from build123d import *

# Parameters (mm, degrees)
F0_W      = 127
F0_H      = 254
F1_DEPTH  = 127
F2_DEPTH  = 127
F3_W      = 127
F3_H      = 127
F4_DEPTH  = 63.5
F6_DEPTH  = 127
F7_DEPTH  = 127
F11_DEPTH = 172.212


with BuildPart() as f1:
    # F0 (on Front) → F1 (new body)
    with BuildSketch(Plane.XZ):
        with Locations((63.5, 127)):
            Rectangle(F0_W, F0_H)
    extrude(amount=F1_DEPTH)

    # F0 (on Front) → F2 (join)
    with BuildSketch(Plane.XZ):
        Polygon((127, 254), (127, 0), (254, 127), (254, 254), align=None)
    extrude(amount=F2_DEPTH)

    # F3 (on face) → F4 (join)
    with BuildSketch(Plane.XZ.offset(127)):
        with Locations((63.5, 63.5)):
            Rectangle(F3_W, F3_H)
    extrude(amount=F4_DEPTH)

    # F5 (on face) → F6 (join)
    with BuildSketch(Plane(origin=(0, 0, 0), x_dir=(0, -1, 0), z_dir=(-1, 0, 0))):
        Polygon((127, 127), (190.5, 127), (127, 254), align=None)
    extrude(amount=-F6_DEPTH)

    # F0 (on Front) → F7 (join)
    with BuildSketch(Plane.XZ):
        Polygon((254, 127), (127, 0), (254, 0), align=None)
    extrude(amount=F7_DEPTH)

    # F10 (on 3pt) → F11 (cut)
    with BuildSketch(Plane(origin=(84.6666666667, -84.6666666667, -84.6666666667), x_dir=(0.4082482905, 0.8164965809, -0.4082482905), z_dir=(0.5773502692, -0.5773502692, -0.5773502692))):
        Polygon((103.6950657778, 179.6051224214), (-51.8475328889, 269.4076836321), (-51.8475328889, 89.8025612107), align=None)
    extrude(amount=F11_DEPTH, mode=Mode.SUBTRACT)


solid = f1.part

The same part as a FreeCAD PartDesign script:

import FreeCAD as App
import Part
import Sketcher

V = App.Vector
Q = App.Units.Quantity


def add_polygon(sketch, points):
    """Adds a closed chain of lines whose ends are joined by coincident constraints."""
    first, n = sketch.GeometryCount, len(points)
    for a, b in zip(points, points[1:] + points[:1]):
        sketch.addGeometry(Part.LineSegment(App.Vector(*a, 0), App.Vector(*b, 0)), False)
    for i in range(n):
        sketch.addConstraint(Sketcher.Constraint("Coincident", first + i, 2, first + (i + 1) % n, 1))

doc = App.newDocument("Part")
body = doc.addObject("PartDesign::Body", "Body")

sketch1 = body.newObject("Sketcher::SketchObject", "Sketch")
sketch1.AttachmentSupport = (doc.getObject("XZ_Plane"), [""])
sketch1.MapMode = "FlatFace"
add_polygon(sketch1, [(0, 254), (0, 0), (127, 0), (127, 254)])
sketch1.addConstraint(Sketcher.Constraint("Vertical", 0))
sketch1.addConstraint(Sketcher.Constraint("Horizontal", 1))
sketch1.addConstraint(Sketcher.Constraint("Vertical", 2))
sketch1.addConstraint(Sketcher.Constraint("Horizontal", 3))
sketch1.addConstraint(Sketcher.Constraint("Coincident", 0, 2, -1, 1))
sketch1.addConstraint(Sketcher.Constraint("DistanceX", 1, 1, 1, 2, Q("5 in")))
sketch1.addConstraint(Sketcher.Constraint("DistanceY", 0, 2, 0, 1, Q("10 in")))
pad1 = body.newObject("PartDesign::Pad", "Pad")
pad1.Profile = sketch1
pad1.Length = Q("5 in")

sketch2 = body.newObject("Sketcher::SketchObject", "Sketch001")
sketch2.AttachmentSupport = (doc.getObject("XZ_Plane"), [""])
sketch2.MapMode = "FlatFace"
add_polygon(sketch2, [(127, 254), (127, 0), (254, 127), (254, 254)])
sketch2.addConstraint(Sketcher.Constraint("Vertical", 0))
sketch2.addConstraint(Sketcher.Constraint("Vertical", 2))
sketch2.addConstraint(Sketcher.Constraint("Horizontal", 3))
sketch2.addConstraint(Sketcher.Constraint("PointOnObject", 0, 2, -1))
sketch2.addConstraint(Sketcher.Constraint("Equal", 3, 2))
sketch2.addConstraint(Sketcher.Constraint("DistanceX", 3, 2, 3, 1, Q("5 in")))
sketch2.addConstraint(Sketcher.Constraint("DistanceY", 0, 2, 0, 1, Q("10 in")))
sketch2.addConstraint(Sketcher.Constraint("DistanceX", -1, 1, 0, 2, Q("5 in")))
pad2 = body.newObject("PartDesign::Pad", "Pad001")
pad2.Profile = sketch2
pad2.Length = Q("5 in")

sketch3 = body.newObject("Sketcher::SketchObject", "Sketch002")
sketch3.AttachmentSupport = (doc.getObject("XZ_Plane"), [""])
sketch3.MapMode = "FlatFace"
sketch3.AttachmentOffset = App.Placement(V(0, 0, 5 * 25.4), App.Rotation())
add_polygon(sketch3, [(0, 127), (0, 0), (127, 0), (127, 127)])
sketch3.addConstraint(Sketcher.Constraint("Vertical", 0))
sketch3.addConstraint(Sketcher.Constraint("Horizontal", 1))
sketch3.addConstraint(Sketcher.Constraint("Vertical", 2))
sketch3.addConstraint(Sketcher.Constraint("Horizontal", 3))
sketch3.addConstraint(Sketcher.Constraint("Coincident", 0, 2, -1, 1))
sketch3.addConstraint(Sketcher.Constraint("Equal", 3, 0))
sketch3.addConstraint(Sketcher.Constraint("DistanceX", 1, 1, 1, 2, Q("5 in")))
pad3 = body.newObject("PartDesign::Pad", "Pad002")
pad3.Profile = sketch3
pad3.Length = Q("2.5 in")

sketch4 = body.newObject("Sketcher::SketchObject", "Sketch003")
sketch4.AttachmentSupport = (doc.getObject("YZ_Plane"), [""])
sketch4.MapMode = "FlatFace"
add_polygon(sketch4, [(-127, 127), (-190, 127), (-127, 254)])
sketch4.addConstraint(Sketcher.Constraint("Horizontal", 0))
sketch4.addConstraint(Sketcher.Constraint("Vertical", 2))
sketch4.addConstraint(Sketcher.Constraint("DistanceY", 2, 2, 2, 1, Q("5 in")))
sketch4.addConstraint(Sketcher.Constraint("DistanceX", 0, 2, 0, 1, Q("2.5 in")))
sketch4.addConstraint(Sketcher.Constraint("DistanceY", -1, 1, 0, 2, Q("5 in")))
sketch4.addConstraint(Sketcher.Constraint("DistanceX", 1, 2, -1, 1, Q("5 in")))
pad4 = body.newObject("PartDesign::Pad", "Pad003")
pad4.Profile = sketch4
pad4.Length = Q("5 in")

sketch5 = body.newObject("Sketcher::SketchObject", "Sketch004")
sketch5.AttachmentSupport = (doc.getObject("XZ_Plane"), [""])
sketch5.MapMode = "FlatFace"
add_polygon(sketch5, [(254, 127), (127, 0), (254, 0)])
sketch5.addConstraint(Sketcher.Constraint("Horizontal", 1))
sketch5.addConstraint(Sketcher.Constraint("Vertical", 2))
sketch5.addConstraint(Sketcher.Constraint("PointOnObject", 0, 2, -1))
sketch5.addConstraint(Sketcher.Constraint("Equal", 1, 2))
sketch5.addConstraint(Sketcher.Constraint("DistanceX", 1, 1, 1, 2, Q("5 in")))
sketch5.addConstraint(Sketcher.Constraint("DistanceX", -1, 1, 0, 2, Q("5 in")))
pad5 = body.newObject("PartDesign::Pad", "Pad004")
pad5.Profile = sketch5
pad5.Length = Q("5 in")

sketch6 = body.newObject("Sketcher::SketchObject", "Sketch005")
sketch6.Placement = App.Placement(V(84.666667, -84.666667, -84.666667), App.Rotation(V(0.40824829, 0.816496581, -0.40824829), V(0.707106781, 0, 0.707106781), V(0.577350269, -0.577350269, -0.577350269), "ZXY"))
add_polygon(sketch6, [(104, 180), (-52, 269), (-52, 90)])
sketch6.addConstraint(Sketcher.Constraint("Vertical", 1))
sketch6.addConstraint(Sketcher.Constraint("Equal", 0, 2))
sketch6.addConstraint(Sketcher.Constraint("Angle", 0, Q("150 deg")))
sketch6.addConstraint(Sketcher.Constraint("DistanceX", 1, 2, 2, 2, 155.542599))
sketch6.addConstraint(Sketcher.Constraint("DistanceY", -1, 1, 1, 2, 89.802561))
sketch6.addConstraint(Sketcher.Constraint("DistanceX", 0, 2, -1, 1, 51.847533))
pocket1 = body.newObject("PartDesign::Pocket", "Pocket")
pocket1.Profile = sketch6
pocket1.Length = Q("6.78 in")
pocket1.Reversed = True

doc.recompute()
